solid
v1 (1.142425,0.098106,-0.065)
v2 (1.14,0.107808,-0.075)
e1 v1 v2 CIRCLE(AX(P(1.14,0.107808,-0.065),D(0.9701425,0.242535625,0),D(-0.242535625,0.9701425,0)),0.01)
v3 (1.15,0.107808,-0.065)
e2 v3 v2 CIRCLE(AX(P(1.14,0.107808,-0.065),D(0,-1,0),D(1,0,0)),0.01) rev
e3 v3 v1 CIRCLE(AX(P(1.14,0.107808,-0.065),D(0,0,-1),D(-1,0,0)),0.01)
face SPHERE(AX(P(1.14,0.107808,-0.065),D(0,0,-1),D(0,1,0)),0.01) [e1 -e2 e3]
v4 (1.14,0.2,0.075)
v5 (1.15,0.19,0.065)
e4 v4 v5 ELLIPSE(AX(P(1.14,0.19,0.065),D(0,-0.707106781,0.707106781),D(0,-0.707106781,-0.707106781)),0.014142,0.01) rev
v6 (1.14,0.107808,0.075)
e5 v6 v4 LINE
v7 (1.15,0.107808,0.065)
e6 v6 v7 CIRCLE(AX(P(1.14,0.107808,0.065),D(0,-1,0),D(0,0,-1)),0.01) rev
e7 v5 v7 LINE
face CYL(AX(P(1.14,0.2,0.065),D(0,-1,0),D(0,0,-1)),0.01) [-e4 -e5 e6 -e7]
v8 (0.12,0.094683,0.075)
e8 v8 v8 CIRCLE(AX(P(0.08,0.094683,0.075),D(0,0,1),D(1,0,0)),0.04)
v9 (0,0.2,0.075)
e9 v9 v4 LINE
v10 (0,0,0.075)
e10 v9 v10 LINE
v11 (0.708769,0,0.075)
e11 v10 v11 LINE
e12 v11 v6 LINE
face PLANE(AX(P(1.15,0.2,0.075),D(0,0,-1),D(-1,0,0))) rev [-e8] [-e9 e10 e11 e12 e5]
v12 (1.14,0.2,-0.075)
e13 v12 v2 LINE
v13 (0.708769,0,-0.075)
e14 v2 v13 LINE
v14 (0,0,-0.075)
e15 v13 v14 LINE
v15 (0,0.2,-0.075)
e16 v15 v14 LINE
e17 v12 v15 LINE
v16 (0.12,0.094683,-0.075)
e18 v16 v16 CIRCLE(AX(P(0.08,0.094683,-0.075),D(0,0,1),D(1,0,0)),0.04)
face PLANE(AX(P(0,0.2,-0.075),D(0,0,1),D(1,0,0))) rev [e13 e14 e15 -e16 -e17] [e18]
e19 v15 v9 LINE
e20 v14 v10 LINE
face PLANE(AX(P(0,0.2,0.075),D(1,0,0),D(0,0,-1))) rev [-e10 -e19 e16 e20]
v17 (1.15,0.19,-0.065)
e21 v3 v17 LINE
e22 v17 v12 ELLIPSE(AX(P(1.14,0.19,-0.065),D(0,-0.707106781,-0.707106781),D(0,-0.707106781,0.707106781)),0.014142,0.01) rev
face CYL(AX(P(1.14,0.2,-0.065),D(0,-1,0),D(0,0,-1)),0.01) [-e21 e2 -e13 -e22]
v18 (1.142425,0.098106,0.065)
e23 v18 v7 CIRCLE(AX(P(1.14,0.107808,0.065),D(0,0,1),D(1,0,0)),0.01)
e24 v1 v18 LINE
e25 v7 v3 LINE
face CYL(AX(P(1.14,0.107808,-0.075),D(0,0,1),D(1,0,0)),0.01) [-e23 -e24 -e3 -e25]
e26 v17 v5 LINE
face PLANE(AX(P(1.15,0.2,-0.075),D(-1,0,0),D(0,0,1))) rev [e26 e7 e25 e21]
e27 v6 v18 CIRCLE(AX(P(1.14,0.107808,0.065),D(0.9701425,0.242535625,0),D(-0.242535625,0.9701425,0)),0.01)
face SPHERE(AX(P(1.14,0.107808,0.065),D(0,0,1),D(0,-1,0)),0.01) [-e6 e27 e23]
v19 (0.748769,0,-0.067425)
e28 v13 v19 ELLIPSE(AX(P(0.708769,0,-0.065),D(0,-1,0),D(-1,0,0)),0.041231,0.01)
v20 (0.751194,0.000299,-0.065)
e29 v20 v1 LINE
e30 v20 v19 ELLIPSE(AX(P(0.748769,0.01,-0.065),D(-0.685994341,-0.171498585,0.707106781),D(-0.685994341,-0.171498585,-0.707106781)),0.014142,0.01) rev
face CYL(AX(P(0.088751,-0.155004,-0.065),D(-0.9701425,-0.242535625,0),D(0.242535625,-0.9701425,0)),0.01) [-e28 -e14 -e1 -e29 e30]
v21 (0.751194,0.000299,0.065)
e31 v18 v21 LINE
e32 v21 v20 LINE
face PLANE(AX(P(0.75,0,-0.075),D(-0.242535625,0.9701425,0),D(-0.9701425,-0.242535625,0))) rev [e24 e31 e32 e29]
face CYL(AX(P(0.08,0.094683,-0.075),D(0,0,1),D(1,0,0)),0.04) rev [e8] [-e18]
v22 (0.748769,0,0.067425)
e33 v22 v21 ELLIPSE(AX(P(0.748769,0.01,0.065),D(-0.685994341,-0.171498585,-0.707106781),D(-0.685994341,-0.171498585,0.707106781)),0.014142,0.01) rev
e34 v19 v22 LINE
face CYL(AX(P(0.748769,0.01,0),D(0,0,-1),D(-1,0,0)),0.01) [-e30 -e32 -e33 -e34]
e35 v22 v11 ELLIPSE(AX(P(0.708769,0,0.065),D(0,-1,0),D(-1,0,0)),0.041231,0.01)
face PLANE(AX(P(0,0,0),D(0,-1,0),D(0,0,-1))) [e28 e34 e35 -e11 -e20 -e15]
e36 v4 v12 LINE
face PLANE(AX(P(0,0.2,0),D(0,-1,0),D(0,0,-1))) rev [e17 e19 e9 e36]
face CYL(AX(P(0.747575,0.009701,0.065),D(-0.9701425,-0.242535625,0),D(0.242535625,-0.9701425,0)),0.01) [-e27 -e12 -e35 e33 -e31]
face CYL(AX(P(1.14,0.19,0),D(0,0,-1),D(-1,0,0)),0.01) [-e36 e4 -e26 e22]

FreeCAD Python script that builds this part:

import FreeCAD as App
import Part
import Sketcher
from FreeCAD import Vector
Q = App.Units.Quantity


def edges_at(feature, points):
    """Names of the edges that pass closest to the given points."""
    edges = feature.Shape.Edges
    near = lambda p: min(range(len(edges)), key=lambda i: edges[i].distToShape(Part.Vertex(*p))[0])
    return sorted({f"Edge{near(p) + 1}" for p in points})

doc = App.newDocument("Part")
body = doc.addObject("PartDesign::Body", "Body")

sketch1 = body.newObject("Sketcher::SketchObject", "Sketch")
sketch1.AttachmentSupport = (doc.getObject("XZ_Plane"), [""])
sketch1.MapMode = "FlatFace"
sketch1.addGeometry([
    Part.LineSegment(Vector(0, -0.07, 0), Vector(0, 0.07, 0)),
    Part.LineSegment(Vector(0, 0.07, 0), Vector(1.15, 0.07, 0)),
    Part.LineSegment(Vector(1.15, 0.07, 0), Vector(1.15, -0.07, 0)),
    Part.LineSegment(Vector(1.15, -0.07, 0), Vector(0, -0.07, 0)),
], False)
sketch1.addConstraint([
    Sketcher.Constraint("Coincident", 0, 2, 1, 1),
    Sketcher.Constraint("Coincident", 1, 2, 2, 1),
    Sketcher.Constraint("Coincident", 2, 2, 3, 1),
    Sketcher.Constraint("Coincident", 3, 2, 0, 1),
    Sketcher.Constraint("Vertical", 0),
    Sketcher.Constraint("Horizontal", 1),
    Sketcher.Constraint("Vertical", 2),
    Sketcher.Constraint("Horizontal", 3),
    Sketcher.Constraint("Symmetric", 0, 2, 3, 2, -1, 1),
    Sketcher.Constraint("DistanceX", 1, 1, 1, 2, Q("1.15 mm")),
    Sketcher.Constraint("DistanceY", 0, 1, 0, 2, Q("0.15 mm")),
])
pad1 = body.newObject("PartDesign::Pad", "Pad")
pad1.Profile = sketch1
pad1.Length = 0.2
pad1.Reversed = True

sketch2 = body.newObject("Sketcher::SketchObject", "Sketch001")
sketch2.AttachmentSupport = (doc.getObject("XY_Plane"), [""])
sketch2.MapMode = "FlatFace"
sketch2.AttachmentOffset = App.Placement(Vector(0, 0, 0.075), App.Rotation())
sketch2.addGeometry([
    Part.LineSegment(Vector(1.15, 0.1, 0), Vector(0.75, 0, 0)),
    Part.LineSegment(Vector(0.75, 0, 0), Vector(1.15, 0, 0)),
    Part.LineSegment(Vector(1.15, 0, 0), Vector(1.15, 0.1, 0)),
], False)
sketch2.addConstraint([
    Sketcher.Constraint("Coincident", 0, 2, 1, 1),
    Sketcher.Constraint("Coincident", 1, 2, 2, 1),
    Sketcher.Constraint("Coincident", 2, 2, 0, 1),
    Sketcher.Constraint("Horizontal", 1),
    Sketcher.Constraint("Vertical", 2),
    Sketcher.Constraint("PointOnObject", 0, 2, -1),
    Sketcher.Constraint("DistanceX", 1, 1, 1, 2, Q("0.4 mm")),
    Sketcher.Constraint("DistanceY", 2, 1, 2, 2, Q("0.1 mm")),
    Sketcher.Constraint("DistanceX", -1, 1, 0, 2, Q("0.75 mm")),
])
pocket1 = body.newObject("PartDesign::Pocket", "Pocket")
pocket1.Profile = sketch2
pocket1.Type = "ThroughAll"
doc.recompute()

fillet = body.newObject("PartDesign::Fillet", "Fillet")
fillet.Base = (pocket1, edges_at(pocket1, [
    (1.15, 0.2, 0),
    (0.95, 0.05, -0.075),
    (0.75, 0, 0),
    (1.15, 0.1, 0),
    (0.95, 0.05, 0.075),
    (1.15, 0.15, -0.075),
    (1.15, 0.15, 0.075),
]))
fillet.Radius = 0.01

sketch3 = body.newObject("Sketcher::SketchObject", "Sketch002")
sketch3.AttachmentSupport = (doc.getObject("XY_Plane"), [""])
sketch3.MapMode = "FlatFace"
sketch3.AttachmentOffset = App.Placement(Vector(0, 0, 0.075), App.Rotation())
sketch3.addGeometry(Part.Circle(Vector(0.08, 0.095, 0), Vector(0, 0, 1), 0.04), False)
sketch3.addConstraint([
    Sketcher.Constraint("Diameter", 0, Q("0.08 mm")),
    Sketcher.Constraint("DistanceX", -1, 1, 0, 3, Q("0.08 mm")),
    Sketcher.Constraint("DistanceY", -1, 1, 0, 3, Q("0.094683 mm")),
])
pocket2 = body.newObject("PartDesign::Pocket", "Pocket001")
pocket2.Profile = sketch3
pocket2.Type = "ThroughAll"

doc.recompute()
